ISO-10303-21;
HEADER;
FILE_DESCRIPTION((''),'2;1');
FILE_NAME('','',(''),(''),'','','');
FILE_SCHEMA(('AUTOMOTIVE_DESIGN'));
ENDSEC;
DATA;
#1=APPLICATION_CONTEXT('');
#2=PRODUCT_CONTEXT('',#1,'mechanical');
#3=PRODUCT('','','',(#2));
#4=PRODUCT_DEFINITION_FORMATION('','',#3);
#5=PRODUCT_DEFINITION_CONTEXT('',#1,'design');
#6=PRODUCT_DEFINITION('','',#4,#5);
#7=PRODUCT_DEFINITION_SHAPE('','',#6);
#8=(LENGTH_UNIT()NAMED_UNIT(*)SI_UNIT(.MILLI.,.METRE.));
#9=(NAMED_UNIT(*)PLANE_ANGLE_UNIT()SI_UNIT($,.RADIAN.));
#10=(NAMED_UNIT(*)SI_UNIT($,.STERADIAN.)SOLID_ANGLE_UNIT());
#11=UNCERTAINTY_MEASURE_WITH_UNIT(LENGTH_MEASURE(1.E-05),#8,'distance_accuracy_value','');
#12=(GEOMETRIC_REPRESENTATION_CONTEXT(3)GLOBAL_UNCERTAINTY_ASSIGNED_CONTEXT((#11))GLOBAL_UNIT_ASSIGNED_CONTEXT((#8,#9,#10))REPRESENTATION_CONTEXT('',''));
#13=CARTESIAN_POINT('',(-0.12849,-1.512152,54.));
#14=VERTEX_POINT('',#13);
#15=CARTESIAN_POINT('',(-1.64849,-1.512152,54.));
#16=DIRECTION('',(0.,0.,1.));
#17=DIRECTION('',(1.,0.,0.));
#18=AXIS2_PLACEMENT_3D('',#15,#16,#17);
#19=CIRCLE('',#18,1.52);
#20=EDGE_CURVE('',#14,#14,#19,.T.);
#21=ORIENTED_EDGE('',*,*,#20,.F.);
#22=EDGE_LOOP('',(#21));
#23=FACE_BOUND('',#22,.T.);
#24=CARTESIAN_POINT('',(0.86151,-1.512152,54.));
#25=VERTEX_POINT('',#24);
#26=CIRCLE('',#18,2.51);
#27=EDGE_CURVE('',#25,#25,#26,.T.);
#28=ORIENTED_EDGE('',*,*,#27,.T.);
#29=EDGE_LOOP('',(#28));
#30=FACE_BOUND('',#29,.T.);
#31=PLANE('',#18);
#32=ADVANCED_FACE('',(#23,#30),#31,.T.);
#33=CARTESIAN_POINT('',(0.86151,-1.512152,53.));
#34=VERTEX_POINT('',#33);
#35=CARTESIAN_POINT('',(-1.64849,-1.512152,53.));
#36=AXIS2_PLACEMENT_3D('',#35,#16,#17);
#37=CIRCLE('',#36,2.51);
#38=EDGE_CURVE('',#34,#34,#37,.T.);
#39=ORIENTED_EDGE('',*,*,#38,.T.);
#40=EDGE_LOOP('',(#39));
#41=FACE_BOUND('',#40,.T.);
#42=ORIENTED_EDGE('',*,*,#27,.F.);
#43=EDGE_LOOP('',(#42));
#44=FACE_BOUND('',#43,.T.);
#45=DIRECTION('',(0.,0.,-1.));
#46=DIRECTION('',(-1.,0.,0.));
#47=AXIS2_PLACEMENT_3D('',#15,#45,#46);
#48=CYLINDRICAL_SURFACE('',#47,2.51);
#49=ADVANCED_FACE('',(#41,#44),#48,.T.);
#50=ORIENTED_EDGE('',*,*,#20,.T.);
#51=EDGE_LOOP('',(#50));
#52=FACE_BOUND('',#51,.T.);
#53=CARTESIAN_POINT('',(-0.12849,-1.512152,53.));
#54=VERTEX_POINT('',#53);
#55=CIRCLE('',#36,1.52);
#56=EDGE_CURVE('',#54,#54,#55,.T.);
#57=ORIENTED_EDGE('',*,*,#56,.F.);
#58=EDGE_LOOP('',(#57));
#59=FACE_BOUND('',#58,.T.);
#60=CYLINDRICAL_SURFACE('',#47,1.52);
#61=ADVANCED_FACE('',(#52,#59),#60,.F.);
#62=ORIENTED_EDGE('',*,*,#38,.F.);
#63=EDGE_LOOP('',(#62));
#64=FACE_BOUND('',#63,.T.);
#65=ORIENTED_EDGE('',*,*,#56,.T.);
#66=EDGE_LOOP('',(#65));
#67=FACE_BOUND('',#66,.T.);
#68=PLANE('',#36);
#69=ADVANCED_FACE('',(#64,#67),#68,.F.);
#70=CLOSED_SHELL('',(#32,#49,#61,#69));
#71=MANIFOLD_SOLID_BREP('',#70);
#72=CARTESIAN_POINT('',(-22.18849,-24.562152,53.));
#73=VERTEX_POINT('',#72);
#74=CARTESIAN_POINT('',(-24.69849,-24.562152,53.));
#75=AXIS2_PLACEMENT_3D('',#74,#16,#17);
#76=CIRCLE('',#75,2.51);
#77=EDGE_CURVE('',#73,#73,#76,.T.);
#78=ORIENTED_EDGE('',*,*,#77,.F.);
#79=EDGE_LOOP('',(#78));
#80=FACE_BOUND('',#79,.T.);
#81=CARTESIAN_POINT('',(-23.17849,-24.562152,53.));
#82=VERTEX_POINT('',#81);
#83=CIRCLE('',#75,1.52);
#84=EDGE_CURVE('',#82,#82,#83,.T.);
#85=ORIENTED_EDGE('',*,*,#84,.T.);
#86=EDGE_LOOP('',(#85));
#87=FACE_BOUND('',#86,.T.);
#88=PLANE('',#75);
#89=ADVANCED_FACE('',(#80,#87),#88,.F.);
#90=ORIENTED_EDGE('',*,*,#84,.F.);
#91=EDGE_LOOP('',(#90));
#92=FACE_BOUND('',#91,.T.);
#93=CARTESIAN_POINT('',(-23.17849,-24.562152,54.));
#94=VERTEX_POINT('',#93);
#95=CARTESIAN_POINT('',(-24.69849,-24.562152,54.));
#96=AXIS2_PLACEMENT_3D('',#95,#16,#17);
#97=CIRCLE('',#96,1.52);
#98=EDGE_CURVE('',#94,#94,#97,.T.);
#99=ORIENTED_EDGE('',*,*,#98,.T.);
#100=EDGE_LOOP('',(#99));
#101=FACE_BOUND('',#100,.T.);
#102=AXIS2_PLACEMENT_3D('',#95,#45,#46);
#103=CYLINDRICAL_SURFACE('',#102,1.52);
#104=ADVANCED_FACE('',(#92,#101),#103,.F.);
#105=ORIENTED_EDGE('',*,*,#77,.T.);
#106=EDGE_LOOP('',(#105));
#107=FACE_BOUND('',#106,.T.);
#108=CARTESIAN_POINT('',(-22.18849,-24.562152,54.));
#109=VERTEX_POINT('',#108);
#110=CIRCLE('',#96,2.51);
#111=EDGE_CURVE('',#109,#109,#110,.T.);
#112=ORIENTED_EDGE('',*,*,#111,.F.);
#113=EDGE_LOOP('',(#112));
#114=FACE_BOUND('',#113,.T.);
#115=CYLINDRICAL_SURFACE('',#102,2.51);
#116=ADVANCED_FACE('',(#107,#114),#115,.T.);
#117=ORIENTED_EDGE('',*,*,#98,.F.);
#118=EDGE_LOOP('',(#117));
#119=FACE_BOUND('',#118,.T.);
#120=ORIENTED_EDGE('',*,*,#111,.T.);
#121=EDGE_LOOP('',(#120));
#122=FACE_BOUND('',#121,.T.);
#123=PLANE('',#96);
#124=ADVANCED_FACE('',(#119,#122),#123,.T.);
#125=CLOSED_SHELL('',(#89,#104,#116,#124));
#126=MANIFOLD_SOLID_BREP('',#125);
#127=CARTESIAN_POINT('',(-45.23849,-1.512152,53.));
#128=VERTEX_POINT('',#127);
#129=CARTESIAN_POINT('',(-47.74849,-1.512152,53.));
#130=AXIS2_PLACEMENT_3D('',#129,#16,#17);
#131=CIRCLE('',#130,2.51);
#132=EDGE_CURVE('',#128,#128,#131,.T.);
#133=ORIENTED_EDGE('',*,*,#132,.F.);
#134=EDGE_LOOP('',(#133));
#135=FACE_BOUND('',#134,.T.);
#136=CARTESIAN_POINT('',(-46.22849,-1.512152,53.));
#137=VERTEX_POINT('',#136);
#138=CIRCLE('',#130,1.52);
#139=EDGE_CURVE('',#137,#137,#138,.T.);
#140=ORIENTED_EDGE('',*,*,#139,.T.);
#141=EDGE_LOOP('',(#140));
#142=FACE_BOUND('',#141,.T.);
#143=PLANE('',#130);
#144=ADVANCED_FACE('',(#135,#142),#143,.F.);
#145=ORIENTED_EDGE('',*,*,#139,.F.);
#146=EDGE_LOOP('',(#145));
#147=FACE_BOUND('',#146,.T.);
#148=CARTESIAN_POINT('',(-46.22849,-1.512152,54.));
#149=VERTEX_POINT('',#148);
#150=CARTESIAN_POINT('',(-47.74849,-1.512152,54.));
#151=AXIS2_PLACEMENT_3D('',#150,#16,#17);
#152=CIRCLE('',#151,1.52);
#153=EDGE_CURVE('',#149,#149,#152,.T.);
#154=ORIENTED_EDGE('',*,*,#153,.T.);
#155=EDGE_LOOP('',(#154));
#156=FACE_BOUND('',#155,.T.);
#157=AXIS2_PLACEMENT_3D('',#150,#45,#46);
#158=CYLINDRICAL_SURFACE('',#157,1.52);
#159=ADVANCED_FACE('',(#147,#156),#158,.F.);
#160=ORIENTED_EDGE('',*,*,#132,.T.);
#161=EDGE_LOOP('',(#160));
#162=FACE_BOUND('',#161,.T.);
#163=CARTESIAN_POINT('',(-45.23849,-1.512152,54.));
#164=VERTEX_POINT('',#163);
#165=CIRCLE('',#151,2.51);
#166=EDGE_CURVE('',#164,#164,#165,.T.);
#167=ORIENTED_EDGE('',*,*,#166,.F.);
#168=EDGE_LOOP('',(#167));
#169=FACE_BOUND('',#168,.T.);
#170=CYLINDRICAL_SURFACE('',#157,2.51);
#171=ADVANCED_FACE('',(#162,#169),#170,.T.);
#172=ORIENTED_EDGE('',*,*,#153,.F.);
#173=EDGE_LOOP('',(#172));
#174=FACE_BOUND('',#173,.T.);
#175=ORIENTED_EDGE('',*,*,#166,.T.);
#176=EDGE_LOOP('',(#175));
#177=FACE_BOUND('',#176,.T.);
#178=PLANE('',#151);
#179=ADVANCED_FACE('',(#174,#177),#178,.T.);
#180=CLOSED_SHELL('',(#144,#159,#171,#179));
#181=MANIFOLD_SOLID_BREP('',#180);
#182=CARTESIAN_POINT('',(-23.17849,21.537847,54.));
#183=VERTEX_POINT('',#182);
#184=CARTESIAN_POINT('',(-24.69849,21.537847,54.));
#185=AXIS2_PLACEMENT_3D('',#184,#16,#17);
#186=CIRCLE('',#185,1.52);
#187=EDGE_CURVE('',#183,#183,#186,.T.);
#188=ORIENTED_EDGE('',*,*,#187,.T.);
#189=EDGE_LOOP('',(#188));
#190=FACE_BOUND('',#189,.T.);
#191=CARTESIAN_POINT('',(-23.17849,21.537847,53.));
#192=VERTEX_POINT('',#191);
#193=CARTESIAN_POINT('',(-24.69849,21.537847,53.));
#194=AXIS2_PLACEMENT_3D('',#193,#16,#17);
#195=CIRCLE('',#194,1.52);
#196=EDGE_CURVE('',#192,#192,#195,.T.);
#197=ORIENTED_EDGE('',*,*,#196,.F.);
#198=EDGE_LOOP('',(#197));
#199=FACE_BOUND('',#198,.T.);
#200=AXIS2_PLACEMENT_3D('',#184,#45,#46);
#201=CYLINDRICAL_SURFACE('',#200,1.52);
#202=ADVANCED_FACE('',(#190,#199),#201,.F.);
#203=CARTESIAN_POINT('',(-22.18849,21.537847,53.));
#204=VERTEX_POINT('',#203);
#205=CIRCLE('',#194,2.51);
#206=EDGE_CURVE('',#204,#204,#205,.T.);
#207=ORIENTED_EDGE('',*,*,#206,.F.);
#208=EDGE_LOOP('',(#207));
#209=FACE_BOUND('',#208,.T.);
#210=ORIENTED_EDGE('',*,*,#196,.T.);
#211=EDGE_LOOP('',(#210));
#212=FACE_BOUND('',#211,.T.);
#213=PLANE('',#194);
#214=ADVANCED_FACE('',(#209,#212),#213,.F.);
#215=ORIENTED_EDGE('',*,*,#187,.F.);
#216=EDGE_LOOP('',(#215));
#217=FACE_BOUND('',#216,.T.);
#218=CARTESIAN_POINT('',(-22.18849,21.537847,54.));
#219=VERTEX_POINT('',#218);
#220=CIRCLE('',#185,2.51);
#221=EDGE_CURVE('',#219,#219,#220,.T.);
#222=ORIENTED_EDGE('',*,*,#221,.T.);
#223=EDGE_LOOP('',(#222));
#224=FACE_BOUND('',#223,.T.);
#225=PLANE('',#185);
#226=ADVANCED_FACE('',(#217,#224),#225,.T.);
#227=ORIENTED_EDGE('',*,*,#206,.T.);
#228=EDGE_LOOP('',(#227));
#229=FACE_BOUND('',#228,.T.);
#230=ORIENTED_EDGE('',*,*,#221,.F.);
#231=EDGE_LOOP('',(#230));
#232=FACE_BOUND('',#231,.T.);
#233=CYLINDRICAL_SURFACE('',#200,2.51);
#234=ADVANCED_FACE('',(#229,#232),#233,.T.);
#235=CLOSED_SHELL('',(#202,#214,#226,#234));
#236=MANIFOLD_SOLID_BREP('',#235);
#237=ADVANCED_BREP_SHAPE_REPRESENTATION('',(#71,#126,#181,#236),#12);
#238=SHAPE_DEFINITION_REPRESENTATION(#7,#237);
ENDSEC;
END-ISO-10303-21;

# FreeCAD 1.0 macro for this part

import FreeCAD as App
import Part
import Sketcher

doc = App.newDocument("Part")
body = doc.addObject("PartDesign::Body", "Body")

sketch1 = body.newObject("Sketcher::SketchObject", "Sketch")
sketch1.AttachmentSupport = (doc.getObject("XY_Plane"), [""])
sketch1.MapMode = "FlatFace"
sketch1.AttachmentOffset = App.Placement(App.Vector(0, 0, 53), App.Rotation())
sketch1.addGeometry([
    Part.Circle(App.Vector(-24.7, 21.5, 0), App.Vector(0, 0, 1), 2.5),
    Part.Circle(App.Vector(-24.7, 21.5, 0), App.Vector(0, 0, 1), 1.5),
], False)
sketch1.addConstraint([
    Sketcher.Constraint("Coincident", 1, 3, 0, 3),
    Sketcher.Constraint("Diameter", 0, 5.02),
    Sketcher.Constraint("Diameter", 1, 3.04),
    Sketcher.Constraint("DistanceX", 0, 3, -1, 1, 24.69849),
    Sketcher.Constraint("DistanceY", -1, 1, 0, 3, 21.537847),
])
pad1 = body.newObject("PartDesign::Pad", "Pad")
pad1.Profile = sketch1
pad1.Length = 1
body2 = doc.addObject("PartDesign::Body", "Body001")

sketch2 = body2.newObject("Sketcher::SketchObject", "Sketch001")
sketch2.AttachmentSupport = (doc.getObject("XY_Plane001"), [""])
sketch2.MapMode = "FlatFace"
sketch2.AttachmentOffset = App.Placement(App.Vector(0, 0, 53), App.Rotation())
sketch2.addGeometry([
    Part.Circle(App.Vector(-1.6, -1.5, 0), App.Vector(0, 0, 1), 2.5),
    Part.Circle(App.Vector(-1.6, -1.5, 0), App.Vector(0, 0, 1), 1.5),
], False)
sketch2.addConstraint([
    Sketcher.Constraint("Coincident", 1, 3, 0, 3),
    Sketcher.Constraint("Diameter", 0, 5.02),
    Sketcher.Constraint("Diameter", 1, 3.04),
    Sketcher.Constraint("DistanceX", 0, 3, -1, 1, 1.64849),
    Sketcher.Constraint("DistanceY", 0, 3, -1, 1, 1.512152),
])
pad2 = body2.newObject("PartDesign::Pad", "Pad001")
pad2.Profile = sketch2
pad2.Length = 1
body3 = doc.addObject("PartDesign::Body", "Body002")

sketch3 = body3.newObject("Sketcher::SketchObject", "Sketch002")
sketch3.AttachmentSupport = (doc.getObject("XY_Plane002"), [""])
sketch3.MapMode = "FlatFace"
sketch3.AttachmentOffset = App.Placement(App.Vector(0, 0, 53), App.Rotation())
sketch3.addGeometry([
    Part.Circle(App.Vector(-24.7, -24.6, 0), App.Vector(0, 0, 1), 2.5),
    Part.Circle(App.Vector(-24.7, -24.6, 0), App.Vector(0, 0, 1), 1.5),
], False)
sketch3.addConstraint([
    Sketcher.Constraint("Coincident", 1, 3, 0, 3),
    Sketcher.Constraint("Diameter", 0, 5.02),
    Sketcher.Constraint("Diameter", 1, 3.04),
    Sketcher.Constraint("DistanceX", 0, 3, -1, 1, 24.69849),
    Sketcher.Constraint("DistanceY", 0, 3, -1, 1, 24.562152),
])
pad3 = body3.newObject("PartDesign::Pad", "Pad002")
pad3.Profile = sketch3
pad3.Length = 1
body4 = doc.addObject("PartDesign::Body", "Body003")

sketch4 = body4.newObject("Sketcher::SketchObject", "Sketch003")
sketch4.AttachmentSupport = (doc.getObject("XY_Plane003"), [""])
sketch4.MapMode = "FlatFace"
sketch4.AttachmentOffset = App.Placement(App.Vector(0, 0, 53), App.Rotation())
sketch4.addGeometry([
    Part.Circle(App.Vector(-47.7, -1.5, 0), App.Vector(0, 0, 1), 2.5),
    Part.Circle(App.Vector(-47.7, -1.5, 0), App.Vector(0, 0, 1), 1.5),
], False)
sketch4.addConstraint([
    Sketcher.Constraint("Coincident", 1, 3, 0, 3),
    Sketcher.Constraint("Diameter", 0, 5.02),
    Sketcher.Constraint("Diameter", 1, 3.04),
    Sketcher.Constraint("DistanceX", 0, 3, -1, 1, 47.74849),
    Sketcher.Constraint("DistanceY", 0, 3, -1, 1, 1.512152),
])
pad4 = body4.newObject("PartDesign::Pad", "Pad003")
pad4.Profile = sketch4
pad4.Length = 1

doc.recompute()
